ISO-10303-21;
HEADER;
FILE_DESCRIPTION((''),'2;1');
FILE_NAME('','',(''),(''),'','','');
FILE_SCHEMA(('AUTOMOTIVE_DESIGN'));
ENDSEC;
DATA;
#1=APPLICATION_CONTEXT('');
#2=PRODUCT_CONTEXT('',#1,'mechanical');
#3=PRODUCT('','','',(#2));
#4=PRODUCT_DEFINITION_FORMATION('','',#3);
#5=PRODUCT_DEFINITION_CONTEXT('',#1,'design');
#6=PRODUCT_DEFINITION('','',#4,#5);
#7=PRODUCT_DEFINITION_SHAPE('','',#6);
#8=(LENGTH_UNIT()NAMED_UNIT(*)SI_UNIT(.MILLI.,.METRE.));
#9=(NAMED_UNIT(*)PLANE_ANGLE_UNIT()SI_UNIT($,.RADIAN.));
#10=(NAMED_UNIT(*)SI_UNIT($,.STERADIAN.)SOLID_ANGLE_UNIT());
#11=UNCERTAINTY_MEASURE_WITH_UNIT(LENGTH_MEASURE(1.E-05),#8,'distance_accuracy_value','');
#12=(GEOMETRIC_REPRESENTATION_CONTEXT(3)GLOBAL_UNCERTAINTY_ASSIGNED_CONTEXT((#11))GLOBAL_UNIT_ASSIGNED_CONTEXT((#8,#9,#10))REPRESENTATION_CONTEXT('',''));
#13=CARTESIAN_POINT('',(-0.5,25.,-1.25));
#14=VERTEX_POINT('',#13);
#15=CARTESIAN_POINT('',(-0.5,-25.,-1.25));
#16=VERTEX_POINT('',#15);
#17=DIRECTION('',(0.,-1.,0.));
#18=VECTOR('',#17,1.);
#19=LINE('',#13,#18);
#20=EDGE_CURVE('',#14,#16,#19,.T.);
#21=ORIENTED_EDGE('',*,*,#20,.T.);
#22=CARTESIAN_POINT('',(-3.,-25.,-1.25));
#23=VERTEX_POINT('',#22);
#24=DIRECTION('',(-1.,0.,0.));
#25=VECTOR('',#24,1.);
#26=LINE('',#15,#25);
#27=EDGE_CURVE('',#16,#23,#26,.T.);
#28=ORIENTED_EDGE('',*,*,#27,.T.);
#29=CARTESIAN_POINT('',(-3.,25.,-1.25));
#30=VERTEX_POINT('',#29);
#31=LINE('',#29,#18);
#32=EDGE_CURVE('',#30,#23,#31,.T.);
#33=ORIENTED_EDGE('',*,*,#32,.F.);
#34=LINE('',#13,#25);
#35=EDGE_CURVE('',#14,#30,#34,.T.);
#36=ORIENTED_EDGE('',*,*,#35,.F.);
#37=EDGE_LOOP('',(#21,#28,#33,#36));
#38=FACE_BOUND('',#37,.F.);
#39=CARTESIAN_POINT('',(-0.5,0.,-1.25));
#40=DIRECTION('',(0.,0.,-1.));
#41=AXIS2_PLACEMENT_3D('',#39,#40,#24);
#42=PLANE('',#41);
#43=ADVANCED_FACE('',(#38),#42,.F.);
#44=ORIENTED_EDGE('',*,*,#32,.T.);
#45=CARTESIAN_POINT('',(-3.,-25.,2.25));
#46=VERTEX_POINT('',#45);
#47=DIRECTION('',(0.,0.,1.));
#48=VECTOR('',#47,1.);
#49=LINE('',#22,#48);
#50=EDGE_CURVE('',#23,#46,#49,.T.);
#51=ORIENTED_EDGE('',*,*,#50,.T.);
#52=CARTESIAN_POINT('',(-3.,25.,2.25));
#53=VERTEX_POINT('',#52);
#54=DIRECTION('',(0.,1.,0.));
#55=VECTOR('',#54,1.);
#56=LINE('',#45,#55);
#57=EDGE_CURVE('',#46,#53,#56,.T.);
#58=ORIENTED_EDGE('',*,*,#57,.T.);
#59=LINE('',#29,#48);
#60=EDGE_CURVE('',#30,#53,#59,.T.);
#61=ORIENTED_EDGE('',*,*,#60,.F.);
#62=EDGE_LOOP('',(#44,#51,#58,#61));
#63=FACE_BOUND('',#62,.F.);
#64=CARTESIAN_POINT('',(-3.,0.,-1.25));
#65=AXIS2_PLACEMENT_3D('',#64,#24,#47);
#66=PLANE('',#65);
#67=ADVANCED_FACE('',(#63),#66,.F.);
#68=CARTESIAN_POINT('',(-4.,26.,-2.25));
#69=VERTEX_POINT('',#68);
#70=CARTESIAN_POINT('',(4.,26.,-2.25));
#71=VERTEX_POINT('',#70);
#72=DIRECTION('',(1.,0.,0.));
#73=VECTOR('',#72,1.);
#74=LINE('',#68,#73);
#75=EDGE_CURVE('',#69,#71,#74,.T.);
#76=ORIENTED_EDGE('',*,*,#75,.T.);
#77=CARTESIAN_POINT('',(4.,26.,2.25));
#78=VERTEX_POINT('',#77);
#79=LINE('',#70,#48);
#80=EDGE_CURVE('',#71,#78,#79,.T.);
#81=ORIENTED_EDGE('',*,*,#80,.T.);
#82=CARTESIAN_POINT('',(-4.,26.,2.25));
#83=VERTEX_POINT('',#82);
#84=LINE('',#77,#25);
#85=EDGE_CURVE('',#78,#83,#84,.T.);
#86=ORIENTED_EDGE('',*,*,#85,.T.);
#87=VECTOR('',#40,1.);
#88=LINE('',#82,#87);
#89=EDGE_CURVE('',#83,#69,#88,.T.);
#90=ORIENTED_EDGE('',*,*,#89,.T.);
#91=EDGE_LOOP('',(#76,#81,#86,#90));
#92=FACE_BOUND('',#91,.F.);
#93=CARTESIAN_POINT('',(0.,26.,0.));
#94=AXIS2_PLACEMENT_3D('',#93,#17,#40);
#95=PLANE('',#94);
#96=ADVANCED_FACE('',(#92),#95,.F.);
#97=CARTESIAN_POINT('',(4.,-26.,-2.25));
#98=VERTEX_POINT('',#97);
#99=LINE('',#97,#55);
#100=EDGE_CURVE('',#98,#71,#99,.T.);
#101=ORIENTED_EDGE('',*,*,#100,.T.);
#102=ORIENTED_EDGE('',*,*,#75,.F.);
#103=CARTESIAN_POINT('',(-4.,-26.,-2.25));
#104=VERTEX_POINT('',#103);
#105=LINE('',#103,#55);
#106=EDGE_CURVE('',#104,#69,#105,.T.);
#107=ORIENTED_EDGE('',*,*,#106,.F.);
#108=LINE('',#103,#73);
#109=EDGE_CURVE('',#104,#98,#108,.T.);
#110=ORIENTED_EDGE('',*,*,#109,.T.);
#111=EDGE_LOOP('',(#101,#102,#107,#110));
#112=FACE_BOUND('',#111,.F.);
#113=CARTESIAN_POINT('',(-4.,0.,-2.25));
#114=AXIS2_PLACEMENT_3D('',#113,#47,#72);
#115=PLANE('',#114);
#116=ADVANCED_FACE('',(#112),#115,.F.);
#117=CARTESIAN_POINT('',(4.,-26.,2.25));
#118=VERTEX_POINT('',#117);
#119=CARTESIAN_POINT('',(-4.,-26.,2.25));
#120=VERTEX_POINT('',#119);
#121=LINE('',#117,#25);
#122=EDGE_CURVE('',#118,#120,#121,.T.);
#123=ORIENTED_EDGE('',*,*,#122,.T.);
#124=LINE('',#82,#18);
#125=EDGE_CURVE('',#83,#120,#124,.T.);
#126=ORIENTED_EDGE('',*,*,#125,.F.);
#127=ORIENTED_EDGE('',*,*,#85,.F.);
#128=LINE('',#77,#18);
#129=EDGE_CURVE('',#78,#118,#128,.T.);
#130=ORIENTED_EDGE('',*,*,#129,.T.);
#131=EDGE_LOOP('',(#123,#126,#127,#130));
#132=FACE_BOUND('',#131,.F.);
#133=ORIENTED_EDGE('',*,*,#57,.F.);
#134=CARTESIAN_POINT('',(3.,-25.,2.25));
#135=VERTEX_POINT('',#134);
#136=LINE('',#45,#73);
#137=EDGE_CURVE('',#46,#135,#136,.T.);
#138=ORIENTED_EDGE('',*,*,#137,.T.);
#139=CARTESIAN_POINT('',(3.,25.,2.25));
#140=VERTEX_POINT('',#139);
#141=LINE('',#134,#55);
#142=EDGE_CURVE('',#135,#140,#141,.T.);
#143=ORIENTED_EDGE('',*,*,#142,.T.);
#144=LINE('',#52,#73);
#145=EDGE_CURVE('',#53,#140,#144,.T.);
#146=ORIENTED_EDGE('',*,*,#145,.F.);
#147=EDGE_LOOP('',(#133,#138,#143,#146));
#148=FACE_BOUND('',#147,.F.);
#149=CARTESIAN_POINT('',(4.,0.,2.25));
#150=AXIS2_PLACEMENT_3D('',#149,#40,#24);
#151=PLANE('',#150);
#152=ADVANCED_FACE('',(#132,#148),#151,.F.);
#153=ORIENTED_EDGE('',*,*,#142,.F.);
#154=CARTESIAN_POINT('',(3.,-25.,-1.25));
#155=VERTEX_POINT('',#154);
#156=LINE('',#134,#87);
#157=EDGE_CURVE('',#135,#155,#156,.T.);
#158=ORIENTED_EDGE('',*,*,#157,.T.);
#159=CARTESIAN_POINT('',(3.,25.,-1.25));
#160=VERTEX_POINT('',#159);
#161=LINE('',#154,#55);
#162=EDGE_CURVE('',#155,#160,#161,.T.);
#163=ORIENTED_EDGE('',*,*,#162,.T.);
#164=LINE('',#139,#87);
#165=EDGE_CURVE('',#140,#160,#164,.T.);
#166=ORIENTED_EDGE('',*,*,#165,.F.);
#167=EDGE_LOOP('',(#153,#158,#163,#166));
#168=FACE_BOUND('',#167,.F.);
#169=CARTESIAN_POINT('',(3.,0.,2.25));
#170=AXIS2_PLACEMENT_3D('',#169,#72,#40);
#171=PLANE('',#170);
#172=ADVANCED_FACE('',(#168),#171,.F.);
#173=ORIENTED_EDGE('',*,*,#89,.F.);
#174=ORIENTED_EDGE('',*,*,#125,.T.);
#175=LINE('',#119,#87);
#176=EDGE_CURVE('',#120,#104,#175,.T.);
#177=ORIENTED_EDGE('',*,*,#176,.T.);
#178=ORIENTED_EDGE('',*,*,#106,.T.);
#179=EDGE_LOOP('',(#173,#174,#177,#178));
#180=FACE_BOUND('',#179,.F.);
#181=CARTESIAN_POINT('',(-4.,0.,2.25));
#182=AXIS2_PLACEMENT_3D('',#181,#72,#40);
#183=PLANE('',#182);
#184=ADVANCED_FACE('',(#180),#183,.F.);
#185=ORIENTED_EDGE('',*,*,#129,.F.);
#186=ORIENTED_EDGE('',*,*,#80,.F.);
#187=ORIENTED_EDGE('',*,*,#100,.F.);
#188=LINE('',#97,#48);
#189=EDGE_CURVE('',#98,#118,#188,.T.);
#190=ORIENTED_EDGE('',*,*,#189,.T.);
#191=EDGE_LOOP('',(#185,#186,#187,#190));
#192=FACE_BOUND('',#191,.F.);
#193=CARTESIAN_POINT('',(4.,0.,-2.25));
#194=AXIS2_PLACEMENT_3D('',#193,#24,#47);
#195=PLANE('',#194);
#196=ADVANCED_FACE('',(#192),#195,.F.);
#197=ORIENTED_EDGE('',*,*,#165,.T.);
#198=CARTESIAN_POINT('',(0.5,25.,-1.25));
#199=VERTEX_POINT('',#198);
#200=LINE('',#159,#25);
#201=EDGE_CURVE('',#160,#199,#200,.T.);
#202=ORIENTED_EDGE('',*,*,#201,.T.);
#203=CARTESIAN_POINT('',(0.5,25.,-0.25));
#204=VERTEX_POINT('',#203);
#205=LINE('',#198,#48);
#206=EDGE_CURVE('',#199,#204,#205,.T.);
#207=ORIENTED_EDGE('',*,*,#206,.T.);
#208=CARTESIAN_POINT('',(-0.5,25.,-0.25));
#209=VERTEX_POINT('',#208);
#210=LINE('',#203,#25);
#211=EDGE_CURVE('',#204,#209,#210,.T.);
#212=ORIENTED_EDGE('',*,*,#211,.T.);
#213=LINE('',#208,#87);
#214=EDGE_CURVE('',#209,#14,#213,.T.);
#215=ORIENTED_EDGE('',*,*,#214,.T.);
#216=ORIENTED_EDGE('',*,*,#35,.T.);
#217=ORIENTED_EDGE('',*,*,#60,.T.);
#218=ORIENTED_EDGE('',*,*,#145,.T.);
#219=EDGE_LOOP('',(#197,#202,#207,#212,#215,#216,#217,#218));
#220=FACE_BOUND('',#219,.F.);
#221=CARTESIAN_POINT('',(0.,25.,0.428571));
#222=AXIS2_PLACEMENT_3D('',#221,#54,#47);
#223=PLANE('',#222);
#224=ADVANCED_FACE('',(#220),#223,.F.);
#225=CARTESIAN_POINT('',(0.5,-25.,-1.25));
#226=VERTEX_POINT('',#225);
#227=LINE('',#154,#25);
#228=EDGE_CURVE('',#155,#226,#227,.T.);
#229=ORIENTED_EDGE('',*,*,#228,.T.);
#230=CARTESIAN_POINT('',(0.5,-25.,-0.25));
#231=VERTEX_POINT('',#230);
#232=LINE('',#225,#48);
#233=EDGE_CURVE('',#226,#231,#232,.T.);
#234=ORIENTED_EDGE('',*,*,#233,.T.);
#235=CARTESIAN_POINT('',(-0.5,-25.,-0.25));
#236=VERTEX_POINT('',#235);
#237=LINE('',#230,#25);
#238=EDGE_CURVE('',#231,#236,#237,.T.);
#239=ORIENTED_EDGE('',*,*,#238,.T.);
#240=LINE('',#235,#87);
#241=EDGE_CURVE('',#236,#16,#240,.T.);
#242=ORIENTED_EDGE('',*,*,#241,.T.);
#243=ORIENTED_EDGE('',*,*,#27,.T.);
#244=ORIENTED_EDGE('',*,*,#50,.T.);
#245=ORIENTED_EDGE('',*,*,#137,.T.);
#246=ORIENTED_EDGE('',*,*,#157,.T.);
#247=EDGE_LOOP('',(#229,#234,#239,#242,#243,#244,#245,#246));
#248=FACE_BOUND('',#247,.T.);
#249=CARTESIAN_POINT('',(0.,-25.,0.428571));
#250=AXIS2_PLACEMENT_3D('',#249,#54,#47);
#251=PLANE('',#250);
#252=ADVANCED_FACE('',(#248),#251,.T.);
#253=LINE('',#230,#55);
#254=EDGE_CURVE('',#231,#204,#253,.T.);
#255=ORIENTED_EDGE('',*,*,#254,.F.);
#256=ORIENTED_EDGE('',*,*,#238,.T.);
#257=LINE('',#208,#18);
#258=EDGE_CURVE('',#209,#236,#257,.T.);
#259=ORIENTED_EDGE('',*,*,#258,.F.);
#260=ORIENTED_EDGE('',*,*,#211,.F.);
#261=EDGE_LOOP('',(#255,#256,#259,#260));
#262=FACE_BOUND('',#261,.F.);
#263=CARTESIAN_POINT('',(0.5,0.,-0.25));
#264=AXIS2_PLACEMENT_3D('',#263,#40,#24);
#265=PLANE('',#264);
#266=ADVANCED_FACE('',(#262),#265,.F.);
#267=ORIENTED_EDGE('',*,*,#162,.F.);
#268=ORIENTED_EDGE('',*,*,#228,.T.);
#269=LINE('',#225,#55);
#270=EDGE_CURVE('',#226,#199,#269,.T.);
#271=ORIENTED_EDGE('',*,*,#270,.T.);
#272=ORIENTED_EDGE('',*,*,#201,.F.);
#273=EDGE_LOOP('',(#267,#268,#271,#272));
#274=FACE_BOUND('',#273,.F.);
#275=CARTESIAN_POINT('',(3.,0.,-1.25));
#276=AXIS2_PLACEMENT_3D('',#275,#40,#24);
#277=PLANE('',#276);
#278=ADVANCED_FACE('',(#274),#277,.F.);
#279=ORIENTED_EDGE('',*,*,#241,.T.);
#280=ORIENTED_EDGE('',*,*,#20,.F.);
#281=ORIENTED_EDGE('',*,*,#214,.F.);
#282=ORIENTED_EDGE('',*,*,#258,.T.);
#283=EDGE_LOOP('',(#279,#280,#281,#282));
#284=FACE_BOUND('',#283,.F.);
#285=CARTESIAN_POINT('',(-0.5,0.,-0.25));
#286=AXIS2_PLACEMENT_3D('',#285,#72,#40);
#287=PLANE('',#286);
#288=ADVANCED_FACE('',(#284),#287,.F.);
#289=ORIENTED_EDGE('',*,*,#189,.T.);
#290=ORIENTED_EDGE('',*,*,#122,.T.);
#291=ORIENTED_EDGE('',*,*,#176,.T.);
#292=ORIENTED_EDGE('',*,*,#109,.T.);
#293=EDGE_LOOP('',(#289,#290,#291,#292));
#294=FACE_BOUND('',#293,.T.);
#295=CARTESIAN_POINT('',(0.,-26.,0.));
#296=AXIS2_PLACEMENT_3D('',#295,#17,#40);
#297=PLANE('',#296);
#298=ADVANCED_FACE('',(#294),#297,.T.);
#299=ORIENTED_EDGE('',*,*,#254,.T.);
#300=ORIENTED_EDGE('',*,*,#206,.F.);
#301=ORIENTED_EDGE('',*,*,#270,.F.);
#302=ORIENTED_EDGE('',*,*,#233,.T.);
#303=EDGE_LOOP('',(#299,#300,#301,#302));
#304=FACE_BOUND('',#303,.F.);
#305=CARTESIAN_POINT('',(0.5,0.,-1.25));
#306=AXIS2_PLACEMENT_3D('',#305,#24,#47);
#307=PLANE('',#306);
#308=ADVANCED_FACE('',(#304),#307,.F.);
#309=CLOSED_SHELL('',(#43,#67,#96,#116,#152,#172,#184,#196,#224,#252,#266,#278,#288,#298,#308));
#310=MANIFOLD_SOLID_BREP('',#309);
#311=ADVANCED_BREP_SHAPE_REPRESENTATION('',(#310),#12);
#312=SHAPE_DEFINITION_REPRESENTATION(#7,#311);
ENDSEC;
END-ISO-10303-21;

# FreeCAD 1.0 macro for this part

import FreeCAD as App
import Part
import Sketcher
Q = App.Units.Quantity


def add_polygon(sketch, points):
    """Adds a closed chain of lines whose ends are joined by coincident constraints."""
    first, n = sketch.GeometryCount, len(points)
    for a, b in zip(points, points[1:] + points[:1]):
        sketch.addGeometry(Part.LineSegment(App.Vector(*a, 0), App.Vector(*b, 0)), False)
    for i in range(n):
        sketch.addConstraint(Sketcher.Constraint("Coincident", first + i, 2, first + (i + 1) % n, 1))

doc = App.newDocument("Part")
params = doc.addObject("Spreadsheet::Sheet", "Params")
for row, (alias, value) in enumerate([
    ("sketch1_width", "8 mm"),
    ("sketch1_height", "4.5 mm"),
    ("pad1_length", "52 mm"),
    ("sketch2_width", "1 mm"),
    ("sketch2_width2", "6 mm"),
    ("sketch2_height", "3.5 mm"),
    ("pocket1_length", "50 mm"),
], start=1):
    params.set(f"A{row}", alias)
    params.set(f"B{row}", "=" + value)
    params.setAlias(f"B{row}", alias)

body = doc.addObject("PartDesign::Body", "Body")

# Sketch on XZ plane
sketch1 = doc.addObject("Sketcher::SketchObject", "Sketch")
body.addObject(sketch1)
sketch1.AttachmentSupport = (doc.XZ_Plane, [""])
sketch1.MapMode = "FlatFace"
add_polygon(sketch1, [(-4, -2.2), (4, -2.2), (4, 2.2), (-4, 2.2)])  # lines 0-3
sketch1.addConstraint([
    Sketcher.Constraint("Horizontal", 0),
    Sketcher.Constraint("Vertical", 1),
    Sketcher.Constraint("Horizontal", 2),
    Sketcher.Constraint("Vertical", 3),
    Sketcher.Constraint("Symmetric", 0, 2, 2, 2, -1, 1),
    Sketcher.Constraint("DistanceX", 0, 1, 0, 2, Q("8 mm")),
    Sketcher.Constraint("DistanceY", 1, 1, 1, 2, Q("4.5 mm")),
])
sketch1.setExpression("Constraints[9]", "Params.sketch1_width")
sketch1.setExpression("Constraints[10]", "Params.sketch1_height")
pad1 = doc.addObject("PartDesign::Pad", "Pad")
body.addObject(pad1)
pad1.Profile = sketch1
pad1.setExpression("Length", "Params.pad1_length")
pad1.Midplane = True

# Sketch on XZ plane
sketch2 = doc.addObject("Sketcher::SketchObject", "Sketch001")
body.addObject(sketch2)
sketch2.AttachmentSupport = (doc.XZ_Plane, [""])
sketch2.MapMode = "FlatFace"
add_polygon(sketch2, [(-3, 2.2), (-3, -1.2), (-0.5, -1.2), (-0.5, -0.2), (0.5, -0.2), (0.5, -1.2), (3, -1.2), (3, 2.2)])  # lines 0-7
sketch2.addConstraint([
    Sketcher.Constraint("Vertical", 0),
    Sketcher.Constraint("Horizontal", 1),
    Sketcher.Constraint("Vertical", 2),
    Sketcher.Constraint("Horizontal", 3),
    Sketcher.Constraint("Vertical", 4),
    Sketcher.Constraint("Horizontal", 5),
    Sketcher.Constraint("Vertical", 6),
    Sketcher.Constraint("Horizontal", 7),
    Sketcher.Constraint("Symmetric", 1, 2, 4, 2, -2),
    Sketcher.Constraint("Equal", 1, 5),
    Sketcher.Constraint("Equal", 3, 2),
    Sketcher.Constraint("DistanceX", 3, 1, 3, 2, Q("1 mm")),
    Sketcher.Constraint("DistanceX", 7, 2, 7, 1, Q("6 mm")),
    Sketcher.Constraint("DistanceY", 0, 2, 0, 1, Q("3.5 mm")),
    Sketcher.Constraint("DistanceY", 0, 2, -1, 1, Q("1.25 mm")),
])
sketch2.setExpression("Constraints[19]", "Params.sketch2_width")
sketch2.setExpression("Constraints[20]", "Params.sketch2_width2")
sketch2.setExpression("Constraints[21]", "Params.sketch2_height")
pocket1 = doc.addObject("PartDesign::Pocket", "Pocket")
body.addObject(pocket1)
pocket1.Profile = sketch2
pocket1.setExpression("Length", "Params.pocket1_length")
pocket1.Midplane = True

doc.recompute()
